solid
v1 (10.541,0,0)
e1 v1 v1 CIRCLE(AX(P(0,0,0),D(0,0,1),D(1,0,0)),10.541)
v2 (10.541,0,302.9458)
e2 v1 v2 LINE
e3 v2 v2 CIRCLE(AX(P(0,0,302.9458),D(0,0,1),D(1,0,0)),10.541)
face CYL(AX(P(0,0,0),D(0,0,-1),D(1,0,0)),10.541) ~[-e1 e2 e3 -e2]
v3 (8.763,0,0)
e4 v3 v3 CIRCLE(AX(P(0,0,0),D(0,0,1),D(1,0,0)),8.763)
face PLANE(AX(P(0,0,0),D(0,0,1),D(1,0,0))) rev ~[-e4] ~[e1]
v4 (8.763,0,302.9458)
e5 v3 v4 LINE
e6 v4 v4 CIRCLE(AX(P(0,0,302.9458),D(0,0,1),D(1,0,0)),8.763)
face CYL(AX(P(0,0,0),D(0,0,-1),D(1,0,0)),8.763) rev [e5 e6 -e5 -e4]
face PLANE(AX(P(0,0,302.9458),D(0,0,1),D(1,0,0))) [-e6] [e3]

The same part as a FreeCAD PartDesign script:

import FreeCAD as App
import Part
import Sketcher
Q = App.Units.Quantity

doc = App.newDocument("Part")
body = doc.addObject("PartDesign::Body", "Body")

# Sketch on XY plane
sketch1 = doc.addObject("Sketcher::SketchObject", "Sketch")
body.addObject(sketch1)
sketch1.AttachmentSupport = (doc.XY_Plane, [""])
sketch1.MapMode = "FlatFace"
sketch1.addGeometry([
    Part.Circle(App.Vector(0, 0, 0), App.Vector(0, 0, 1), 11),
    Part.Circle(App.Vector(0, 0, 0), App.Vector(0, 0, 1), 9),
], False)
sketch1.addConstraint([
    Sketcher.Constraint("Coincident", 0, 3, -1, 1),
    Sketcher.Constraint("Coincident", 1, 3, -1, 1),
    Sketcher.Constraint("Diameter", 1, Q("0.69 in")),
    Sketcher.Constraint("Diameter", 0, Q("0.83 in")),
])
pad1 = doc.addObject("PartDesign::Pad", "Pad")
body.addObject(pad1)
pad1.Profile = sketch1
pad1.Length = Q("11.927 in")

doc.recompute()
